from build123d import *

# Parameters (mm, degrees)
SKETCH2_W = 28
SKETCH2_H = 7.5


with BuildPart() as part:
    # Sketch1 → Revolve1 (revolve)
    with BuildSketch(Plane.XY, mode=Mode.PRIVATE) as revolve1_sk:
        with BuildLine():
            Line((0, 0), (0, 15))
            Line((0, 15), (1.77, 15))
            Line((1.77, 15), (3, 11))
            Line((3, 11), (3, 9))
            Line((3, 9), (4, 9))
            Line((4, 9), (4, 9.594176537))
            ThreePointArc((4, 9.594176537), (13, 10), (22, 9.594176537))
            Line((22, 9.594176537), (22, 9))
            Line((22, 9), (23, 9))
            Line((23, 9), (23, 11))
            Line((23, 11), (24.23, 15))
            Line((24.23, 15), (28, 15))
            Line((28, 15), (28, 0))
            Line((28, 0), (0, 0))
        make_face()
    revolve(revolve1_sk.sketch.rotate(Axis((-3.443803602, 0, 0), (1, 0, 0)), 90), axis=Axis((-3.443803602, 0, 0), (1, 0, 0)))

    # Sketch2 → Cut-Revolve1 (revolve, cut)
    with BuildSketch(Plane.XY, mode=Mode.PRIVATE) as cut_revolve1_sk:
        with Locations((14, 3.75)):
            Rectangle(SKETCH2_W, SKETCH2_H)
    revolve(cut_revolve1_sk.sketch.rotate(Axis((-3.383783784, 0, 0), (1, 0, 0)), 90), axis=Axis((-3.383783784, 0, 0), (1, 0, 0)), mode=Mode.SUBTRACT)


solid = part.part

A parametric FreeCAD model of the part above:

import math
import FreeCAD as App
import Part
import Sketcher

V = App.Vector

doc = App.newDocument("Part")
body = doc.addObject("PartDesign::Body", "Body")

# Sketch on XY plane
sketch1 = doc.addObject("Sketcher::SketchObject", "Sketch")
body.addObject(sketch1)
sketch1.AttachmentSupport = (doc.XY_Plane, [""])
sketch1.MapMode = "FlatFace"
sketch1.addGeometry([
    Part.LineSegment(V(0, 15, 0), V(0, 0, 0)),  # 0
    Part.LineSegment(V(0, 0, 0), V(28, 0, 0)),  # 1
    Part.LineSegment(V(28, 0, 0), V(28, 15, 0)),  # 2
    Part.LineSegment(V(28, 15, 0), V(24.2, 15, 0)),  # 3
    Part.LineSegment(V(24.2, 15, 0), V(23, 11, 0)),  # 4
    Part.LineSegment(V(23, 11, 0), V(23, 9, 0)),  # 5
    Part.LineSegment(V(23, 9, 0), V(22, 9, 0)),  # 6
    Part.LineSegment(V(22, 9, 0), V(22, 9.6, 0)),  # 7
    Part.ArcOfCircle(Part.Circle(V(13, -90, 0), V(0, 0, 1), 100), math.radians(84.84), math.radians(95.16)),  # 8
    Part.LineSegment(V(4, 9.6, 0), V(4, 9, 0)),  # 9
    Part.LineSegment(V(4, 9, 0), V(3, 9, 0)),  # 10
    Part.LineSegment(V(3, 9, 0), V(3, 11, 0)),  # 11
    Part.LineSegment(V(3, 11, 0), V(1.8, 15, 0)),  # 12
    Part.LineSegment(V(1.8, 15, 0), V(0, 15, 0)),  # 13
], False)
sketch1.addConstraint([
    Sketcher.Constraint("Coincident", 0, 2, 1, 1),
    Sketcher.Constraint("Coincident", 1, 2, 2, 1),
    Sketcher.Constraint("Coincident", 2, 2, 3, 1),
    Sketcher.Constraint("Coincident", 3, 2, 4, 1),
    Sketcher.Constraint("Coincident", 4, 2, 5, 1),
    Sketcher.Constraint("Coincident", 5, 2, 6, 1),
    Sketcher.Constraint("Coincident", 6, 2, 7, 1),
    Sketcher.Constraint("Coincident", 7, 2, 8, 1),
    Sketcher.Constraint("Coincident", 8, 2, 9, 1),
    Sketcher.Constraint("Coincident", 9, 2, 10, 1),
    Sketcher.Constraint("Coincident", 10, 2, 11, 1),
    Sketcher.Constraint("Coincident", 11, 2, 12, 1),
    Sketcher.Constraint("Coincident", 12, 2, 13, 1),
    Sketcher.Constraint("Coincident", 13, 2, 0, 1),
    Sketcher.Constraint("Vertical", 0),
    Sketcher.Constraint("Horizontal", 1),
    Sketcher.Constraint("Vertical", 2),
    Sketcher.Constraint("Horizontal", 3),
    Sketcher.Constraint("Vertical", 5),
    Sketcher.Constraint("Horizontal", 6),
    Sketcher.Constraint("Vertical", 7),
    Sketcher.Constraint("Vertical", 9),
    Sketcher.Constraint("Horizontal", 10),
    Sketcher.Constraint("Vertical", 11),
    Sketcher.Constraint("Horizontal", 13),
    Sketcher.Constraint("Coincident", 0, 2, -1, 1),
    Sketcher.Constraint("Horizontal", 7, 2, 8, 2),
    Sketcher.Constraint("Horizontal", 6, 2, 9, 2),
    Sketcher.Constraint("Horizontal", 4, 2, 11, 2),
    Sketcher.Constraint("Horizontal", 3, 2, 12, 2),
    Sketcher.Constraint("Equal", 6, 10),
    Sketcher.Constraint("Equal", 4, 12),
    Sketcher.Constraint("Radius", 8, 100.0),
    Sketcher.Constraint("DistanceX", 1, 1, 1, 2, 28.0),
    Sketcher.Constraint("DistanceX", 6, 2, 6, 1, 1.0),
    Sketcher.Constraint("DistanceY", 0, 2, 0, 1, 15.0),
    Sketcher.Constraint("DistanceY", 5, 2, 5, 1, 2.0),
    Sketcher.Constraint("DistanceX", -1, 1, 8, 3, 13.0),
    Sketcher.Constraint("DistanceY", 8, 3, -1, 1, 90.0),
    Sketcher.Constraint("DistanceX", -1, 1, 4, 2, 23.0),
    Sketcher.Constraint("DistanceY", -1, 1, 4, 2, 11.0),
    Sketcher.Constraint("DistanceX", 3, 2, 3, 1, 3.77),
])
revolution = doc.addObject("PartDesign::Revolution", "Revolution")
body.addObject(revolution)
revolution.Profile = sketch1
revolution.ReferenceAxis = (sketch1, ["H_Axis"])
revolution.Angle = 360

# Sketch on XY plane
sketch2 = doc.addObject("Sketcher::SketchObject", "Sketch001")
body.addObject(sketch2)
sketch2.AttachmentSupport = (doc.XY_Plane, [""])
sketch2.MapMode = "FlatFace"
sketch2.addGeometry([
    Part.LineSegment(V(0, 8, 0), V(0, 0, 0)),
    Part.LineSegment(V(0, 0, 0), V(28, 0, 0)),
    Part.LineSegment(V(28, 0, 0), V(28, 8, 0)),
    Part.LineSegment(V(28, 8, 0), V(0, 8, 0)),
], False)
sketch2.addConstraint([
    Sketcher.Constraint("Coincident", 0, 2, 1, 1),
    Sketcher.Constraint("Coincident", 1, 2, 2, 1),
    Sketcher.Constraint("Coincident", 2, 2, 3, 1),
    Sketcher.Constraint("Coincident", 3, 2, 0, 1),
    Sketcher.Constraint("Vertical", 0),
    Sketcher.Constraint("Horizontal", 1),
    Sketcher.Constraint("Vertical", 2),
    Sketcher.Constraint("Horizontal", 3),
    Sketcher.Constraint("Coincident", 0, 2, -1, 1),
    Sketcher.Constraint("DistanceX", 1, 1, 1, 2, 28.0),
    Sketcher.Constraint("DistanceY", 0, 2, 0, 1, 7.5),
])
groove = doc.addObject("PartDesign::Groove", "Groove")
body.addObject(groove)
groove.Profile = sketch2
groove.ReferenceAxis = (sketch2, ["H_Axis"])
groove.Angle = 360

doc.recompute()
